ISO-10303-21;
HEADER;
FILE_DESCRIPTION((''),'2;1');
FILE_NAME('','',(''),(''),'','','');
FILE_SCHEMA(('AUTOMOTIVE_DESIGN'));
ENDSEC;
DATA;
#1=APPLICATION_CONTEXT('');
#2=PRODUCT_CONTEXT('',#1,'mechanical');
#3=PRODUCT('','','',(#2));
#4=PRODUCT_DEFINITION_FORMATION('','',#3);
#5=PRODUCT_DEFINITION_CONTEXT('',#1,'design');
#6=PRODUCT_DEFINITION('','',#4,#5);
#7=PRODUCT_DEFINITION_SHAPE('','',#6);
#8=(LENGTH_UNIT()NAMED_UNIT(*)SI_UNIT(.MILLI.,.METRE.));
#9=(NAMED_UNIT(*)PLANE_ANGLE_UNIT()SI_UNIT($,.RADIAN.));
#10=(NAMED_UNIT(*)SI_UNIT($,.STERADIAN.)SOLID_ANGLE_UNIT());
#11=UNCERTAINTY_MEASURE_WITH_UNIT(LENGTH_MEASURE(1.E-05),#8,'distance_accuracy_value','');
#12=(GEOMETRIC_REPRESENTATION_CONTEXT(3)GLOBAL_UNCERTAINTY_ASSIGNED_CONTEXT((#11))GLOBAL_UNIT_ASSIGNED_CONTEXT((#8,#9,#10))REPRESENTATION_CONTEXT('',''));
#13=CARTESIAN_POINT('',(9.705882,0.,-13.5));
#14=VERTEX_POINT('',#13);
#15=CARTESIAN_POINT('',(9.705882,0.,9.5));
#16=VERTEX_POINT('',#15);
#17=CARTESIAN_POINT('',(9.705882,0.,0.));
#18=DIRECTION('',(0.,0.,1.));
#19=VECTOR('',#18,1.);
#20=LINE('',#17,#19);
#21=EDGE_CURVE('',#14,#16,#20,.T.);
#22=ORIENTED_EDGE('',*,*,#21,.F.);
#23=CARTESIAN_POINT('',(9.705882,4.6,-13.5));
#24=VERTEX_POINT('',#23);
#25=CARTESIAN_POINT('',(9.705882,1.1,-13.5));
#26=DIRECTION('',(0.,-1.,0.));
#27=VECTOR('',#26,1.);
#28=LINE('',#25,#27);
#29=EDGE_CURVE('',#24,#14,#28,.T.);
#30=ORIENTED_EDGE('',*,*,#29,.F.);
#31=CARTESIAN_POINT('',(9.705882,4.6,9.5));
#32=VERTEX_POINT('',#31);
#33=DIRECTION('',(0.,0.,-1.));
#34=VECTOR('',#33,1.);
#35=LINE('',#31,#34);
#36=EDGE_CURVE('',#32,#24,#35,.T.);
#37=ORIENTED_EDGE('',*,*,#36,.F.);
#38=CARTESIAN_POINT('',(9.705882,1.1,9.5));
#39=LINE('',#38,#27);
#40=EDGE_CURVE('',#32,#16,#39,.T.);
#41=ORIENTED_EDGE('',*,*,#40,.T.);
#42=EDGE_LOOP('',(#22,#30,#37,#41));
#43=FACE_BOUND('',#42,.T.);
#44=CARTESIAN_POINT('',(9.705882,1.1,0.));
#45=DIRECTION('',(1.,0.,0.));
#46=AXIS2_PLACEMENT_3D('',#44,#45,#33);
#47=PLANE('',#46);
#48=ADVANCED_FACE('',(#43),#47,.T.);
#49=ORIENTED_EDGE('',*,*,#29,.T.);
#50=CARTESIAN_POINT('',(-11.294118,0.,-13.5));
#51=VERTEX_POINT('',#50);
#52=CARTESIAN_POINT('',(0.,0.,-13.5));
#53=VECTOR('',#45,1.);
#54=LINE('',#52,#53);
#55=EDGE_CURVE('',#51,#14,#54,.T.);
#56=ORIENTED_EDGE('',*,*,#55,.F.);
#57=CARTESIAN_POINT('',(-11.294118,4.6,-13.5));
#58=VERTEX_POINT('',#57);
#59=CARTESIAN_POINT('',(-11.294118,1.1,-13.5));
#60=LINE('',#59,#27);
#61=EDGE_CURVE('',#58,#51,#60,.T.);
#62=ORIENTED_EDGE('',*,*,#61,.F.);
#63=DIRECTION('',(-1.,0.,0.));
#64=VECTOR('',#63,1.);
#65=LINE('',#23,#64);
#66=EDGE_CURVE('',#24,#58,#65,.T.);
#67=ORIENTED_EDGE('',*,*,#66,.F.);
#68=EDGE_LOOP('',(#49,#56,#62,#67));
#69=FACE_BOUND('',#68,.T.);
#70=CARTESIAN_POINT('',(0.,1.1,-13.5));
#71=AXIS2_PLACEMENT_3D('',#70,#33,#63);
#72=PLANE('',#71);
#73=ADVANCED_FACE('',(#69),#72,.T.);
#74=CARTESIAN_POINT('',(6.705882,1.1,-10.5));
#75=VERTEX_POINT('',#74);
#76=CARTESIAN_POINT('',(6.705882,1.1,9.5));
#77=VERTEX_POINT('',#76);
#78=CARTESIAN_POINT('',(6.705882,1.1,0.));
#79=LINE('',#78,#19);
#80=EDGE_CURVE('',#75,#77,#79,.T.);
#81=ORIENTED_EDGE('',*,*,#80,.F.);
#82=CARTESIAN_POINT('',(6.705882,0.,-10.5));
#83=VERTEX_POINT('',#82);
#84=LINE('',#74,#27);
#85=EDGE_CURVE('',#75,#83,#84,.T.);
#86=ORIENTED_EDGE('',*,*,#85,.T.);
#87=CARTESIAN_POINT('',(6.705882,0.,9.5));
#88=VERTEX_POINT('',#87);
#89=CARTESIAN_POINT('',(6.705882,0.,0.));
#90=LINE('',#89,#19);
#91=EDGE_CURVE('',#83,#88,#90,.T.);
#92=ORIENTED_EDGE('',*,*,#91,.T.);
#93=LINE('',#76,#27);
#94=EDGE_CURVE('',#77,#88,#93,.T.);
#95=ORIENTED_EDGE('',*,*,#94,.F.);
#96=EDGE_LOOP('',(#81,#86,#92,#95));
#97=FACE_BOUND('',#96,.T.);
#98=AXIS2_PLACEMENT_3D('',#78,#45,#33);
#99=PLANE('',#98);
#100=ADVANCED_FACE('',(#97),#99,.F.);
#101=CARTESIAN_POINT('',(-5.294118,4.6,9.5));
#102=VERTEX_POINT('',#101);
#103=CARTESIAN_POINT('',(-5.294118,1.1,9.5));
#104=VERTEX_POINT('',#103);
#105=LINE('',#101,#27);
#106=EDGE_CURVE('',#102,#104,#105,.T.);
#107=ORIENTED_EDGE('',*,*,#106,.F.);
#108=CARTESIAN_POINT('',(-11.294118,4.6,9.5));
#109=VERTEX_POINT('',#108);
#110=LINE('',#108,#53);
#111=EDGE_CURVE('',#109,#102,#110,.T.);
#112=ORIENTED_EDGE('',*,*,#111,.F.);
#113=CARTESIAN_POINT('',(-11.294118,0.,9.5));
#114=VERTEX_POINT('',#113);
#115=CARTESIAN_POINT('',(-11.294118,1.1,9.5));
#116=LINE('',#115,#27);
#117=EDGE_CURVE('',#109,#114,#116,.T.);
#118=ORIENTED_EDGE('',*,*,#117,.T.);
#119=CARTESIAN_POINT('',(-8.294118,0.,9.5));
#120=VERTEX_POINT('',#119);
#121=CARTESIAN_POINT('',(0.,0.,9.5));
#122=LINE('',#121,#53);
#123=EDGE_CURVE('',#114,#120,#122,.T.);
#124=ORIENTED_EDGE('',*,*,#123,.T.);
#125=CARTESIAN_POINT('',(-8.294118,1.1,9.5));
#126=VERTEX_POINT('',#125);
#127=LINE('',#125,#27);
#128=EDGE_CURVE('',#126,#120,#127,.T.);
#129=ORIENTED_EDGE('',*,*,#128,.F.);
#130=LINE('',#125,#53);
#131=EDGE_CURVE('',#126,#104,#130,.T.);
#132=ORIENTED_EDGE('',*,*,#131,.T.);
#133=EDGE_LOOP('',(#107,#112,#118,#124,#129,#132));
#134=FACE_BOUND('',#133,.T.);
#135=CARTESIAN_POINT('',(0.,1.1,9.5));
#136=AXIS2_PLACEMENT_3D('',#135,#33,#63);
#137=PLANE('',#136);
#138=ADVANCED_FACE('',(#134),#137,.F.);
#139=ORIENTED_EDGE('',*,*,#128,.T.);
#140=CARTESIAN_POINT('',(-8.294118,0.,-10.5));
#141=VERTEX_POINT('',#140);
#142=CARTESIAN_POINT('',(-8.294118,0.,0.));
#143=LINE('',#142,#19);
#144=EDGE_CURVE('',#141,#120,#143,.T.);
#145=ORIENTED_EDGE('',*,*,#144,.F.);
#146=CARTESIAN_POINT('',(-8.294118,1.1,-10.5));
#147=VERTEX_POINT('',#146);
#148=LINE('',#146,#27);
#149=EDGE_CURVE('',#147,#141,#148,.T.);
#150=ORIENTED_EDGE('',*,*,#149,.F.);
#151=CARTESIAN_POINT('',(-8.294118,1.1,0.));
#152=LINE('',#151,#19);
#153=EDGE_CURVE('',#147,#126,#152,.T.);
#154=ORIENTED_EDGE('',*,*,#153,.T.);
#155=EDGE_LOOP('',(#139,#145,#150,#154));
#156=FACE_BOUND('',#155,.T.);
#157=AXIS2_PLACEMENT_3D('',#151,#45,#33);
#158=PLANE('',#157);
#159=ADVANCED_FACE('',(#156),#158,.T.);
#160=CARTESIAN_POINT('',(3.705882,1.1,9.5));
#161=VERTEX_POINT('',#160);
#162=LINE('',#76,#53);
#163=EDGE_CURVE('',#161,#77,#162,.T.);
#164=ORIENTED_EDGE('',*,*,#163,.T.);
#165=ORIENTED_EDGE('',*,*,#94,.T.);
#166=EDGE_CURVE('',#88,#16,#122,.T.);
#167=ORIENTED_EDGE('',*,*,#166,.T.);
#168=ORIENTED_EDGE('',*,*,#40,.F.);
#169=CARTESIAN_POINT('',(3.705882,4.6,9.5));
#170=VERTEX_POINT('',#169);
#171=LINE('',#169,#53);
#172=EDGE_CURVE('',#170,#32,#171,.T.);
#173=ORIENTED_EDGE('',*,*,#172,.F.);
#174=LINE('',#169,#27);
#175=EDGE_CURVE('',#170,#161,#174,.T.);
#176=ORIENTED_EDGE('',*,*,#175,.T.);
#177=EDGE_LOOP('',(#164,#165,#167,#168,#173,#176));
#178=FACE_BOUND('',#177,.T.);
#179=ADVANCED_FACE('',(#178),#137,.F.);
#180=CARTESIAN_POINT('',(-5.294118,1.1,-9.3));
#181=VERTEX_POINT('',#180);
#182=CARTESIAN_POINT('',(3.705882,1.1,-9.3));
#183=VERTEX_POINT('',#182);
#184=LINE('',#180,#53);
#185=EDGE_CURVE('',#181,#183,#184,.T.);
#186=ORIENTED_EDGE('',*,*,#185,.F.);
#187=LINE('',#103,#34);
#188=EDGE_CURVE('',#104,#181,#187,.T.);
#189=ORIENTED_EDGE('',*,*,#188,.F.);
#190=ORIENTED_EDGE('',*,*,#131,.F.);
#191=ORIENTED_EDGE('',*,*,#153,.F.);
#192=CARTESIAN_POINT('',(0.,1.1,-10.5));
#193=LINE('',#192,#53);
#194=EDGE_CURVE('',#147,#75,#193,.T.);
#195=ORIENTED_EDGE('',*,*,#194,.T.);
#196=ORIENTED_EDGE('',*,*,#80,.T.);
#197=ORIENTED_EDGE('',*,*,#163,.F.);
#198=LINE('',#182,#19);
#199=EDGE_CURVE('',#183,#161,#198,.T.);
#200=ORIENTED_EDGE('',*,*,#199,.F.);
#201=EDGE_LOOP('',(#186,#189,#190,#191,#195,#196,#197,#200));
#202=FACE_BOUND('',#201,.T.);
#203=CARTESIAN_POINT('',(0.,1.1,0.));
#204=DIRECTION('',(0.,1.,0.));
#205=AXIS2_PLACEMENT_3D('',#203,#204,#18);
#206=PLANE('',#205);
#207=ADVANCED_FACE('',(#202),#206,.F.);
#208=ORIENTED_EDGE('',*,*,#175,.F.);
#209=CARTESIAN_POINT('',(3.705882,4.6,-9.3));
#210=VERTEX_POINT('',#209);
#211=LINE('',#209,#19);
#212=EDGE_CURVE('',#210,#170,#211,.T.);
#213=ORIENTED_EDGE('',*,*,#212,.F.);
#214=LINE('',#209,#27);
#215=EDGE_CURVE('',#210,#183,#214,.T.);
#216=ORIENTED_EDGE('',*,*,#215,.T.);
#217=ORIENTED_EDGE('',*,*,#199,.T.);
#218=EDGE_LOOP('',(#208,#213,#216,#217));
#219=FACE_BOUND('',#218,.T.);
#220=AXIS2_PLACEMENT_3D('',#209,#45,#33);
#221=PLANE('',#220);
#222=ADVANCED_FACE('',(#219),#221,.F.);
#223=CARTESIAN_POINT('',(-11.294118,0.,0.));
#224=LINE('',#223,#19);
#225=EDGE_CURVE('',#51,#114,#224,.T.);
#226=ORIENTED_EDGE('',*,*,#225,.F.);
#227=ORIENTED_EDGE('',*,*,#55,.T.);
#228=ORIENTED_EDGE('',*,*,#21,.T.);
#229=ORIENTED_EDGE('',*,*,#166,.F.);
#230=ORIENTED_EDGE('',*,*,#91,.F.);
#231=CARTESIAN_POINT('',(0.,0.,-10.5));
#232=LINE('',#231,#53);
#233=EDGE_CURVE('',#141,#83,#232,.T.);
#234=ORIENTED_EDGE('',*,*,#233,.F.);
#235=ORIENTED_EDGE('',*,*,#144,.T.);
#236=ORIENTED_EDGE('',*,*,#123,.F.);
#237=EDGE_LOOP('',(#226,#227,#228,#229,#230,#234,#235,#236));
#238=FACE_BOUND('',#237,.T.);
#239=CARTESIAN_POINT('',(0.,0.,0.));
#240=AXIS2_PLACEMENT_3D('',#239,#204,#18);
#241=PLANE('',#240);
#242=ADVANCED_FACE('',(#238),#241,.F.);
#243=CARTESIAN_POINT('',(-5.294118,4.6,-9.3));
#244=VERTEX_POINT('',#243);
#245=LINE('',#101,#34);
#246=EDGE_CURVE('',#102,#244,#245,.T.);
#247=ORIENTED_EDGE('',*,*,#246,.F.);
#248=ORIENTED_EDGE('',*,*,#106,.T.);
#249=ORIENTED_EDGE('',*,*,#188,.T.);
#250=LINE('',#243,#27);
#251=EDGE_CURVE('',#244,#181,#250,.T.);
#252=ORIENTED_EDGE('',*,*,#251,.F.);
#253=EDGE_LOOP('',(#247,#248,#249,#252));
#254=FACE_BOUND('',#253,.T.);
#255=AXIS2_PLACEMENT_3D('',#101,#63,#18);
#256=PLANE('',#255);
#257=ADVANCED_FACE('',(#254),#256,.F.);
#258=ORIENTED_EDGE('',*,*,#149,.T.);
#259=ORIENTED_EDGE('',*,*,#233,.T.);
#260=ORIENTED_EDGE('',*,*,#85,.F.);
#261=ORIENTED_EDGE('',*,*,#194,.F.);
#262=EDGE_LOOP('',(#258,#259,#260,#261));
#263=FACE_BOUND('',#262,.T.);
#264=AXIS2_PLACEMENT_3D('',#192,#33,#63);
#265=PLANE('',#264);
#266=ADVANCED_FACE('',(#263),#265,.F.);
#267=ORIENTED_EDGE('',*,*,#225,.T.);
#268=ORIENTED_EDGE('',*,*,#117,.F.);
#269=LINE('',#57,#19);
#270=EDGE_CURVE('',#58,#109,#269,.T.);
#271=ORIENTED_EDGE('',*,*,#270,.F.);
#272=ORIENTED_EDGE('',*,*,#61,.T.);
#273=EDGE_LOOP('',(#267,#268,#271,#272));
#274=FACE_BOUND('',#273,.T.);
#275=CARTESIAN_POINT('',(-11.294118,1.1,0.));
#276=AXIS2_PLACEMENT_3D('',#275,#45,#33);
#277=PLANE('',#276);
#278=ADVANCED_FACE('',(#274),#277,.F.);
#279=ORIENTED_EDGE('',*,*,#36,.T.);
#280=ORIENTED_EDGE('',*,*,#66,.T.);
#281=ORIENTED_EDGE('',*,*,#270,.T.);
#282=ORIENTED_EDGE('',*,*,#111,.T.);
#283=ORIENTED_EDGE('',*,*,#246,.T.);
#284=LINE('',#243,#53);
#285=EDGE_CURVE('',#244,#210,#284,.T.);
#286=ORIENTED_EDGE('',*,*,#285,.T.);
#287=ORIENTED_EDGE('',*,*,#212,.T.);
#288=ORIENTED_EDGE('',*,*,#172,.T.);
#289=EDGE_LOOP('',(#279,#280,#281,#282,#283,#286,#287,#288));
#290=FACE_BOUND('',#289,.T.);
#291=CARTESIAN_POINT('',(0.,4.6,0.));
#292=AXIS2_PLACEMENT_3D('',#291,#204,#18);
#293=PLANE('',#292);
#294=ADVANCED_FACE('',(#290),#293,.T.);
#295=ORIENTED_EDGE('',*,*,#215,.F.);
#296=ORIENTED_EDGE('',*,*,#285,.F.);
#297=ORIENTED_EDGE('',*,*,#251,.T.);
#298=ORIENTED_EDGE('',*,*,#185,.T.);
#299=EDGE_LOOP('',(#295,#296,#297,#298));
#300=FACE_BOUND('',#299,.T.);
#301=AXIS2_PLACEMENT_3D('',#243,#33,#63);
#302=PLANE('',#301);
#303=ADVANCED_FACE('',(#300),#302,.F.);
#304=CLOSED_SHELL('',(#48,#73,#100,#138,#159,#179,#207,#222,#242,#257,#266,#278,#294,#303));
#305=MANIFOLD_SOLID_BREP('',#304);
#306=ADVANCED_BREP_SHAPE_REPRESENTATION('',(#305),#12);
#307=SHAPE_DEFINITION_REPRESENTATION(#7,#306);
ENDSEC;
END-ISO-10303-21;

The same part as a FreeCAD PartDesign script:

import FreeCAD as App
import Part
import Sketcher

V = App.Vector
Q = App.Units.Quantity

doc = App.newDocument("Part")
body = doc.addObject("PartDesign::Body", "Body")

# Sketch on XZ plane
sketch1 = body.newObject("Sketcher::SketchObject", "Sketch")
sketch1.AttachmentSupport = (doc.getObject("XZ_Plane"), [""])
sketch1.MapMode = "FlatFace"
sketch1.addGeometry(Part.LineSegment(V(9.705882, -13.5, 0), V(-11.294118, -13.5, 0)), False)
sketch1.addGeometry(Part.LineSegment(V(-11.294118, -13.5, 0), V(-11.294118, 9.5, 0)), False)
sketch1.addGeometry(Part.LineSegment(V(-11.294118, 9.5, 0), V(-8.294118, 9.5, 0)), False)
sketch1.addGeometry(Part.LineSegment(V(-8.294118, 9.5, 0), V(-8.294118, -10.5, 0)), False)
sketch1.addGeometry(Part.LineSegment(V(-8.294118, -10.5, 0), V(6.705882, -10.5, 0)), False)
sketch1.addGeometry(Part.LineSegment(V(6.705882, -10.5, 0), V(6.705882, 9.5, 0)), False)
sketch1.addGeometry(Part.LineSegment(V(6.705882, 9.5, 0), V(9.705882, 9.5, 0)), False)
sketch1.addGeometry(Part.LineSegment(V(9.705882, 9.5, 0), V(9.705882, -13.5, 0)), False)
sketch1.addConstraint(Sketcher.Constraint("Coincident", 0, 2, 1, 1))
sketch1.addConstraint(Sketcher.Constraint("Coincident", 1, 2, 2, 1))
sketch1.addConstraint(Sketcher.Constraint("Coincident", 2, 2, 3, 1))
sketch1.addConstraint(Sketcher.Constraint("Coincident", 3, 2, 4, 1))
sketch1.addConstraint(Sketcher.Constraint("Coincident", 4, 2, 5, 1))
sketch1.addConstraint(Sketcher.Constraint("Coincident", 5, 2, 6, 1))
sketch1.addConstraint(Sketcher.Constraint("Coincident", 6, 2, 7, 1))
sketch1.addConstraint(Sketcher.Constraint("Coincident", 7, 2, 0, 1))
sketch1.addConstraint(Sketcher.Constraint("Horizontal", 0))
sketch1.addConstraint(Sketcher.Constraint("Vertical", 1))
sketch1.addConstraint(Sketcher.Constraint("Horizontal", 2))
sketch1.addConstraint(Sketcher.Constraint("Vertical", 3))
sketch1.addConstraint(Sketcher.Constraint("Horizontal", 4))
sketch1.addConstraint(Sketcher.Constraint("Vertical", 5))
sketch1.addConstraint(Sketcher.Constraint("Horizontal", 6))
sketch1.addConstraint(Sketcher.Constraint("Vertical", 7))
sketch1.addConstraint(Sketcher.Constraint("Horizontal", 2, 2, 5, 2))
sketch1.addConstraint(Sketcher.Constraint("Equal", 2, 6))
sketch1.addConstraint(Sketcher.Constraint("DistanceX", 0, 2, 0, 1, Q("21 mm")))
sketch1.addConstraint(Sketcher.Constraint("DistanceX", 2, 1, 2, 2, Q("3 mm")))
sketch1.addConstraint(Sketcher.Constraint("DistanceY", 1, 1, 1, 2, Q("23 mm")))
sketch1.addConstraint(Sketcher.Constraint("DistanceY", 3, 2, 3, 1, Q("20 mm")))
sketch1.addConstraint(Sketcher.Constraint("DistanceY", 0, 2, -1, 1, Q("13.5 mm")))
sketch1.addConstraint(Sketcher.Constraint("DistanceX", 0, 2, -1, 1, Q("11.294118 mm")))
pad1 = body.newObject("PartDesign::Pad", "Pad")
pad1.Profile = sketch1
pad1.Length = 1.1
pad1.Reversed = True

# Sketch on XZ plane
sketch2 = body.newObject("Sketcher::SketchObject", "Sketch001")
sketch2.AttachmentSupport = (doc.getObject("XZ_Plane"), [""])
sketch2.MapMode = "FlatFace"
sketch2.AttachmentOffset = App.Placement(V(0, 0, -1.1), App.Rotation())
sketch2.addGeometry(Part.LineSegment(V(-5.294118, 9.5, 0), V(-5.294118, -9.3, 0)), False)
sketch2.addGeometry(Part.LineSegment(V(-5.294118, -9.3, 0), V(3.705882, -9.3, 0)), False)
sketch2.addGeometry(Part.LineSegment(V(3.705882, -9.3, 0), V(3.705882, 9.5, 0)), False)
sketch2.addGeometry(Part.LineSegment(V(3.705882, 9.5, 0), V(9.705882, 9.5, 0)), False)
sketch2.addGeometry(Part.LineSegment(V(9.705882, 9.5, 0), V(9.705882, -13.5, 0)), False)
sketch2.addGeometry(Part.LineSegment(V(9.705882, -13.5, 0), V(-11.294118, -13.5, 0)), False)
sketch2.addGeometry(Part.LineSegment(V(-11.294118, -13.5, 0), V(-11.294118, 9.5, 0)), False)
sketch2.addGeometry(Part.LineSegment(V(-11.294118, 9.5, 0), V(-5.294118, 9.5, 0)), False)
sketch2.addConstraint(Sketcher.Constraint("Coincident", 0, 2, 1, 1))
sketch2.addConstraint(Sketcher.Constraint("Coincident", 1, 2, 2, 1))
sketch2.addConstraint(Sketcher.Constraint("Coincident", 2, 2, 3, 1))
sketch2.addConstraint(Sketcher.Constraint("Coincident", 3, 2, 4, 1))
sketch2.addConstraint(Sketcher.Constraint("Coincident", 4, 2, 5, 1))
sketch2.addConstraint(Sketcher.Constraint("Coincident", 5, 2, 6, 1))
sketch2.addConstraint(Sketcher.Constraint("Coincident", 6, 2, 7, 1))
sketch2.addConstraint(Sketcher.Constraint("Coincident", 7, 2, 0, 1))
sketch2.addConstraint(Sketcher.Constraint("Vertical", 0))
sketch2.addConstraint(Sketcher.Constraint("Horizontal", 1))
sketch2.addConstraint(Sketcher.Constraint("Vertical", 2))
sketch2.addConstraint(Sketcher.Constraint("Horizontal", 3))
sketch2.addConstraint(Sketcher.Constraint("Vertical", 4))
sketch2.addConstraint(Sketcher.Constraint("Horizontal", 5))
sketch2.addConstraint(Sketcher.Constraint("Vertical", 6))
sketch2.addConstraint(Sketcher.Constraint("Horizontal", 7))
sketch2.addConstraint(Sketcher.Constraint("Horizontal", 3, 2, 6, 2))
sketch2.addConstraint(Sketcher.Constraint("Equal", 3, 7))
sketch2.addConstraint(Sketcher.Constraint("DistanceX", 1, 1, 1, 2, Q("9 mm")))
sketch2.addConstraint(Sketcher.Constraint("DistanceX", 3, 1, 3, 2, Q("6 mm")))
sketch2.addConstraint(Sketcher.Constraint("DistanceY", 4, 2, 4, 1, Q("23 mm")))
sketch2.addConstraint(Sketcher.Constraint("DistanceY", 0, 2, 0, 1, Q("18.8 mm")))
sketch2.addConstraint(Sketcher.Constraint("DistanceY", 0, 2, -1, 1, Q("9.3 mm")))
sketch2.addConstraint(Sketcher.Constraint("DistanceX", 0, 2, -1, 1, Q("5.294118 mm")))
pad2 = body.newObject("PartDesign::Pad", "Pad001")
pad2.Profile = sketch2
pad2.Length = 3.5
pad2.Reversed = True

doc.recompute()
